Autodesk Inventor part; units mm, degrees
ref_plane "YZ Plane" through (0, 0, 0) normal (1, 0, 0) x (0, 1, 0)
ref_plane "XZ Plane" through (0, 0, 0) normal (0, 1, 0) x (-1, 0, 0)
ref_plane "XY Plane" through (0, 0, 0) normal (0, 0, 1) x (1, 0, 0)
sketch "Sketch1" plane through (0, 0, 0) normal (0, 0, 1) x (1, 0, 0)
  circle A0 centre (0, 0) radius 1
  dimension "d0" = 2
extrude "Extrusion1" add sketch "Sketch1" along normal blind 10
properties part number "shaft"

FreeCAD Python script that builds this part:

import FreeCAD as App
import Part
import Sketcher

doc = App.newDocument("Part")
body = doc.addObject("PartDesign::Body", "Body")

sketch1 = doc.addObject("Sketcher::SketchObject", "Sketch")
body.addObject(sketch1)
sketch1.AttachmentSupport = (doc.XY_Plane, [""])
sketch1.MapMode = "FlatFace"
sketch1.addGeometry(Part.Circle(App.Vector(0, 0, 0), App.Vector(0, 0, 1), 1), False)
sketch1.addConstraint(Sketcher.Constraint("Coincident", 0, 3, -1, 1))
sketch1.addConstraint(Sketcher.Constraint("Diameter", 0, 2.0))
pad1 = doc.addObject("PartDesign::Pad", "Pad")
body.addObject(pad1)
pad1.Profile = sketch1
pad1.Length = 10

doc.recompute()
